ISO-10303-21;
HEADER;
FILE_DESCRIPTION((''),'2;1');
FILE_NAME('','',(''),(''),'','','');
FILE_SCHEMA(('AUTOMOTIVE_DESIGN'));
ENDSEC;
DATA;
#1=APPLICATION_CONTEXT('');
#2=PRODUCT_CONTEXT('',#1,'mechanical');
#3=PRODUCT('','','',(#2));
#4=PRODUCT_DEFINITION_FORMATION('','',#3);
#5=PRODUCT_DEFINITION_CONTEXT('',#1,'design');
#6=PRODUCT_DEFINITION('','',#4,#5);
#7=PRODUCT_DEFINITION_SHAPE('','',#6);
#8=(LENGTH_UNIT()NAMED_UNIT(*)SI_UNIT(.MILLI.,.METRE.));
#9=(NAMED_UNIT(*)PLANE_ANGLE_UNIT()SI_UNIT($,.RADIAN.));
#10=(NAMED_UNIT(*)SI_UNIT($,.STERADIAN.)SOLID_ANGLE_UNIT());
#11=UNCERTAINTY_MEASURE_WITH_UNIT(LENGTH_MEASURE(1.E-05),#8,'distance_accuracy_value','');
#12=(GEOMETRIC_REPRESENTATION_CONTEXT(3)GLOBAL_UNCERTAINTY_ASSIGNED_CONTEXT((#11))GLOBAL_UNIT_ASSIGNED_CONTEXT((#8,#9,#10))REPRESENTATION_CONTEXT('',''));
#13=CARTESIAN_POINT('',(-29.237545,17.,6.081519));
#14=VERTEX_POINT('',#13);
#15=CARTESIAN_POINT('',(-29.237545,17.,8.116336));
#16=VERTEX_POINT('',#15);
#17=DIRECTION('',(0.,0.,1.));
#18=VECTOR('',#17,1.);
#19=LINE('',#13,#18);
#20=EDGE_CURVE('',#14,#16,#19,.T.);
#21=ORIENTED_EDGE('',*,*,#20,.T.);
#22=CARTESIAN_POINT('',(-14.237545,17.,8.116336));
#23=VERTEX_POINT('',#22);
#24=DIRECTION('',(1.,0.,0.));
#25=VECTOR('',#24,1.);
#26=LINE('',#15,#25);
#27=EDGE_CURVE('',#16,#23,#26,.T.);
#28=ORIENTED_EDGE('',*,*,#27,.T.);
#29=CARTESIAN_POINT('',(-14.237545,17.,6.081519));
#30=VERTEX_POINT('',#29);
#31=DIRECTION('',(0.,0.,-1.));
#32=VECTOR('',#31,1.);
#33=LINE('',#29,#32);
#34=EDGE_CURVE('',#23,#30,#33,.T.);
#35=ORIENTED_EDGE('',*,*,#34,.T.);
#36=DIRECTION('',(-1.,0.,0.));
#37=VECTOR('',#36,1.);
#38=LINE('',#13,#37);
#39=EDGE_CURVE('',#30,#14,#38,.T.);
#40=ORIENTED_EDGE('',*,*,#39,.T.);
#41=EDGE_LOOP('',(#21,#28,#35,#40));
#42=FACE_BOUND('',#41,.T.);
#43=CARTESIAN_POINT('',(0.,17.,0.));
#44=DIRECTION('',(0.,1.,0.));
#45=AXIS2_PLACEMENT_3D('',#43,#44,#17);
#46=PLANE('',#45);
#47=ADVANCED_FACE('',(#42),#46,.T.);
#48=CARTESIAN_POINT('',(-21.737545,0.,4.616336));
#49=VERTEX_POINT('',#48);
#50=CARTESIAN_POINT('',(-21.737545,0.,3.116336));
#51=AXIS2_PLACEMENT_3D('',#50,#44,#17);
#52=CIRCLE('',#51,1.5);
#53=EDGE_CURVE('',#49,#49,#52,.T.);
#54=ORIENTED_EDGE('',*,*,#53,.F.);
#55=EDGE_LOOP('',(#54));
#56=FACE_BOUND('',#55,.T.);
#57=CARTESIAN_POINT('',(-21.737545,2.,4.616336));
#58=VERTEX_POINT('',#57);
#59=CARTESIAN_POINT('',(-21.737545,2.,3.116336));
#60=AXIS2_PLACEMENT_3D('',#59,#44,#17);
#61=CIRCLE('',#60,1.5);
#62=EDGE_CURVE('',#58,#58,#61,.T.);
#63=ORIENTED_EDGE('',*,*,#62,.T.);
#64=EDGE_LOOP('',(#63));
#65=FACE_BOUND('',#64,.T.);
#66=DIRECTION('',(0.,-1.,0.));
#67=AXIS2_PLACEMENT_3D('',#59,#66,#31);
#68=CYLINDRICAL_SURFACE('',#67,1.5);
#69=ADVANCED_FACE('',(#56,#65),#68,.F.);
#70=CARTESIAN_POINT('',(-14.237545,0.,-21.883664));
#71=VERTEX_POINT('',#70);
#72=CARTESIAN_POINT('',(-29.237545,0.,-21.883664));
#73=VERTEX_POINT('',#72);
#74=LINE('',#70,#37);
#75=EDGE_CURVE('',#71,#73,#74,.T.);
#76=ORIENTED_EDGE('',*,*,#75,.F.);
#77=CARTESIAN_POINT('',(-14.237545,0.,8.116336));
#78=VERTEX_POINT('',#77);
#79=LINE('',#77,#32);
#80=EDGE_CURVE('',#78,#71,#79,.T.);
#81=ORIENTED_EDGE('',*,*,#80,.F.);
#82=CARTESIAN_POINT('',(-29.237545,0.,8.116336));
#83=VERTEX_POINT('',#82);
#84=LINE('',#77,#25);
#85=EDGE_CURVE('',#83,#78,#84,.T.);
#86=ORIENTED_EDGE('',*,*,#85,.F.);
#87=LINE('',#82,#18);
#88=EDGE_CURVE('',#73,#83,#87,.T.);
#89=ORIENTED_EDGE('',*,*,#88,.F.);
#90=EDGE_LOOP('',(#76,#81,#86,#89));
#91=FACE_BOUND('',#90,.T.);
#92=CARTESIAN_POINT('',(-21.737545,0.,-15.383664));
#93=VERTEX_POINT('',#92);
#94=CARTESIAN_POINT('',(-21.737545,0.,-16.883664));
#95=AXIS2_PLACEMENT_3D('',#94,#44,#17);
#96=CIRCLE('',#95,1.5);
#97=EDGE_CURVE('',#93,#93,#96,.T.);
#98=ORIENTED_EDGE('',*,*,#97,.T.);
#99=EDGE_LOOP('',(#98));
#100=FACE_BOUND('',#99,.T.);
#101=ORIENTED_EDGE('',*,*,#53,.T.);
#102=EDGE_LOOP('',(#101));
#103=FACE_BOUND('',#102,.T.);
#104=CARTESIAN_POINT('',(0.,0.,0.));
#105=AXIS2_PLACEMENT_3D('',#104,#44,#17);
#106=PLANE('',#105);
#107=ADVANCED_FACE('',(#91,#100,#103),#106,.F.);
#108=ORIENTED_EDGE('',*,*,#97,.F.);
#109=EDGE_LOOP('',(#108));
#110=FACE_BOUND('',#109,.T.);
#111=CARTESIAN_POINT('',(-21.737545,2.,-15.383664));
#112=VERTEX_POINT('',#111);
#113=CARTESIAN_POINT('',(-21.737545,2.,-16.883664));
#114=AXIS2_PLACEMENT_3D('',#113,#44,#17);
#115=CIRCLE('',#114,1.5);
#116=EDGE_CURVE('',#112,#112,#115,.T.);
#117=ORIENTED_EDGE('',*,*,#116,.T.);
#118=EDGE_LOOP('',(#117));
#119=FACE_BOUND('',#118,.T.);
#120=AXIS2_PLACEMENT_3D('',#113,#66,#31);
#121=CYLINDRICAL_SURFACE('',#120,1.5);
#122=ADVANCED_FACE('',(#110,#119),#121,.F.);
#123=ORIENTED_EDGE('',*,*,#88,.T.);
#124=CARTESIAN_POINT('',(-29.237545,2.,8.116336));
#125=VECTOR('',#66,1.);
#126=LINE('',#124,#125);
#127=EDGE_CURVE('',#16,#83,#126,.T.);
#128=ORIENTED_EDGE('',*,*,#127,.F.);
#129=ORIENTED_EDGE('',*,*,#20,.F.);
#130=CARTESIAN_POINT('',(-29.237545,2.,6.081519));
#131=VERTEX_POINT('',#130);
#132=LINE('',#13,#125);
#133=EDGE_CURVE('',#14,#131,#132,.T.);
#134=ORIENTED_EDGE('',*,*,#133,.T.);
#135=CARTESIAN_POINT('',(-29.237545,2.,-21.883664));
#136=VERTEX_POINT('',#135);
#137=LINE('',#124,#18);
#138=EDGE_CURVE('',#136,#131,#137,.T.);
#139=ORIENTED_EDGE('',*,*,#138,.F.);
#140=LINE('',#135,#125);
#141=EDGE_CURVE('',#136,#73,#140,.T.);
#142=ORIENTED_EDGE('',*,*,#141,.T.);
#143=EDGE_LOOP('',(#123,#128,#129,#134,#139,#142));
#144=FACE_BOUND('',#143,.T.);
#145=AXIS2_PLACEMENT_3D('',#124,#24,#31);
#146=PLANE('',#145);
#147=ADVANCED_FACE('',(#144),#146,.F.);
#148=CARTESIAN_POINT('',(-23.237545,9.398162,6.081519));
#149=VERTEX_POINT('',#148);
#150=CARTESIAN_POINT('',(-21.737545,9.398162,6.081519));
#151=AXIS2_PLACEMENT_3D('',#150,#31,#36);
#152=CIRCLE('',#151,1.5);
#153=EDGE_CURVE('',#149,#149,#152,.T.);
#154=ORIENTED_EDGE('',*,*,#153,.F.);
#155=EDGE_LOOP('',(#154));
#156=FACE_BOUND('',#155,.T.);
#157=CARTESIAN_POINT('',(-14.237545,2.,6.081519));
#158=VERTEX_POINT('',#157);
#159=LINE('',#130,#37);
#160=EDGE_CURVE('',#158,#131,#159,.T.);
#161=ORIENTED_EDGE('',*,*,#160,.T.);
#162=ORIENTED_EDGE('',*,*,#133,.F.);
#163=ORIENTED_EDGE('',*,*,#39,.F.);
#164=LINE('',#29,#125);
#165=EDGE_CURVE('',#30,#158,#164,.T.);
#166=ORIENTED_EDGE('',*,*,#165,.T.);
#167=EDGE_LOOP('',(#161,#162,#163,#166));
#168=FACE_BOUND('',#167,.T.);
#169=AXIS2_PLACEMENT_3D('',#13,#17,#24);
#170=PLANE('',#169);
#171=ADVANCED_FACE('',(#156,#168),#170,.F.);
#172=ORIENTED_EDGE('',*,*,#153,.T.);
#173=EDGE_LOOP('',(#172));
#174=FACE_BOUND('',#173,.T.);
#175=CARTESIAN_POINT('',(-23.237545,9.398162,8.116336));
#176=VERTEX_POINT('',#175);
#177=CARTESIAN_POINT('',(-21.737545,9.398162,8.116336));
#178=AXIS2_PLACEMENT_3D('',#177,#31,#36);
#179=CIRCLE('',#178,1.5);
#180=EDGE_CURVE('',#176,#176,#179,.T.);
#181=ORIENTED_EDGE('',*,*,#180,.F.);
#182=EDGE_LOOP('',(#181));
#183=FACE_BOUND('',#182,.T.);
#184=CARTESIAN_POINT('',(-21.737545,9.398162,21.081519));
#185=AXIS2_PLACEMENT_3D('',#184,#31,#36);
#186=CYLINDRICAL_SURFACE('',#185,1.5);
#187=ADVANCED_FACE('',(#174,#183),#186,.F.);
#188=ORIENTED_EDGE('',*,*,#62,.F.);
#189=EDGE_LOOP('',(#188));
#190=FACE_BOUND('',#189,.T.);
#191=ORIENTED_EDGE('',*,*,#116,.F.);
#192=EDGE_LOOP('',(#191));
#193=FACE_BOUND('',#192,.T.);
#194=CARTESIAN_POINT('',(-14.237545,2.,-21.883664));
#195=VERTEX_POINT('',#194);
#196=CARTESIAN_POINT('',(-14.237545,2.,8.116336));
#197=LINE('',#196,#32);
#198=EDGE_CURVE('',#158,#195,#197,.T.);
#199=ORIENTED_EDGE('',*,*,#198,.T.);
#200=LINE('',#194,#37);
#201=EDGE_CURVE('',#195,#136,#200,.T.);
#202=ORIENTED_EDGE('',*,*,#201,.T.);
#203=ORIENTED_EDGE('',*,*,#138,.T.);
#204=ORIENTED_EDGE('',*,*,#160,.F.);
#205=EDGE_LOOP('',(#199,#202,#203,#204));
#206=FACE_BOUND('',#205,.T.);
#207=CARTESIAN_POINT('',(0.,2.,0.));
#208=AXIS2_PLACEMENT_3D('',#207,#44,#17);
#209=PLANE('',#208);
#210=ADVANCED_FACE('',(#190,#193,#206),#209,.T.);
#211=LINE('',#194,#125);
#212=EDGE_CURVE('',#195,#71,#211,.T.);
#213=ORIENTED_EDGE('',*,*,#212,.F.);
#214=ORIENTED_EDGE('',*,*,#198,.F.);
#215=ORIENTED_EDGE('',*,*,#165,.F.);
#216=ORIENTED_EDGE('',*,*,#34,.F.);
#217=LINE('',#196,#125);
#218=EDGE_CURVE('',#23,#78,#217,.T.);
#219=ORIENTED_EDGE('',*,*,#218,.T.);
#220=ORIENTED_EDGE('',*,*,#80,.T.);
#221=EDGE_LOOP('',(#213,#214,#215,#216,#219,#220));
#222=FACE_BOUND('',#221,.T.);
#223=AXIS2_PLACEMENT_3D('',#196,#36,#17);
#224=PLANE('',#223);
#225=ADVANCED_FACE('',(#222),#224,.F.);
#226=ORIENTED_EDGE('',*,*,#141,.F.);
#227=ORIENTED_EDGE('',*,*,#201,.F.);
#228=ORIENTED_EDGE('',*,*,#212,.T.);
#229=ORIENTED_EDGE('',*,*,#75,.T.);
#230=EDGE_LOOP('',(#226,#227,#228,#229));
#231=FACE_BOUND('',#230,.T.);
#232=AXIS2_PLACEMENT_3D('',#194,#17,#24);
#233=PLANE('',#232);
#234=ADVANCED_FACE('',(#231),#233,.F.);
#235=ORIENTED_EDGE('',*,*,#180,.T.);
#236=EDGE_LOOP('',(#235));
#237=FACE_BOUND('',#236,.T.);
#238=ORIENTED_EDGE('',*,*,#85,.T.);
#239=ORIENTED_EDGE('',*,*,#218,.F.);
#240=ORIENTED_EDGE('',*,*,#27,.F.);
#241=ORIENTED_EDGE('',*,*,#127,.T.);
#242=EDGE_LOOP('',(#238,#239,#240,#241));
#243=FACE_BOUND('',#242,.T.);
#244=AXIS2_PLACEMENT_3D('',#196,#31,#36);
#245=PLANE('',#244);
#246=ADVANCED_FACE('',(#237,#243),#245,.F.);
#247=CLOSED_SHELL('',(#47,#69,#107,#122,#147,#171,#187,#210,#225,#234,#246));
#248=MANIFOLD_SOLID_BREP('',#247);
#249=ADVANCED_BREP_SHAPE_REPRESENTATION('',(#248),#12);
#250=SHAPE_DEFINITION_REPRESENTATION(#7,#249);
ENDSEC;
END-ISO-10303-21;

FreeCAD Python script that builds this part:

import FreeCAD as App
import Part
import Sketcher

doc = App.newDocument("Part")
params = doc.addObject("Spreadsheet::Sheet", "Params")
for row, (alias, value) in enumerate([
    ("sketch1_diameter", "3 mm"),
    ("sketch1_width", "15 mm"),
    ("sketch1_height", "30 mm"),
    ("pad1_length", "2 mm"),
    ("sketch2_width", "15 mm"),
    ("pad2_length", "15 mm"),
    ("sketch3_diameter", "3 mm"),
    ("pocket1_length", "15 mm"),
], start=1):
    params.set(f"A{row}", alias)
    params.set(f"B{row}", "=" + value)
    params.setAlias(f"B{row}", alias)

body = doc.addObject("PartDesign::Body", "Body")

# Sketch on XZ plane
sketch1 = body.newObject("Sketcher::SketchObject", "Sketch")
sketch1.AttachmentSupport = (doc.getObject("XZ_Plane"), [""])
sketch1.MapMode = "FlatFace"
sketch1.addGeometry(Part.LineSegment(App.Vector(-29.2, -21.9, 0), App.Vector(-29.2, 8.1, 0)), False)
sketch1.addGeometry(Part.LineSegment(App.Vector(-29.2, 8.1, 0), App.Vector(-14.2, 8.1, 0)), False)
sketch1.addGeometry(Part.LineSegment(App.Vector(-14.2, 8.1, 0), App.Vector(-14.2, -21.9, 0)), False)
sketch1.addGeometry(Part.LineSegment(App.Vector(-14.2, -21.9, 0), App.Vector(-29.2, -21.9, 0)), False)
sketch1.addGeometry(Part.Circle(App.Vector(-21.7, 3.1, 0), App.Vector(0, 0, 1), 1.5), False)
sketch1.addGeometry(Part.Circle(App.Vector(-21.7, -16.9, 0), App.Vector(0, 0, 1), 1.5), False)
sketch1.addConstraint(Sketcher.Constraint("Coincident", 0, 2, 1, 1))
sketch1.addConstraint(Sketcher.Constraint("Coincident", 1, 2, 2, 1))
sketch1.addConstraint(Sketcher.Constraint("Coincident", 2, 2, 3, 1))
sketch1.addConstraint(Sketcher.Constraint("Coincident", 3, 2, 0, 1))
sketch1.addConstraint(Sketcher.Constraint("Vertical", 0))
sketch1.addConstraint(Sketcher.Constraint("Horizontal", 1))
sketch1.addConstraint(Sketcher.Constraint("Vertical", 2))
sketch1.addConstraint(Sketcher.Constraint("Horizontal", 3))
sketch1.addConstraint(Sketcher.Constraint("Equal", 4, 5))
sketch1.addConstraint(Sketcher.Constraint("Vertical", 4, 3, 5, 3))
sketch1.addConstraint(Sketcher.Constraint("Diameter", 4, 3.0))
sketch1.addConstraint(Sketcher.Constraint("DistanceX", 1, 1, 1, 2, 15.0))
sketch1.addConstraint(Sketcher.Constraint("DistanceY", 0, 1, 0, 2, 30.0))
sketch1.addConstraint(Sketcher.Constraint("DistanceY", 5, 3, 4, 3, 20.0))
sketch1.addConstraint(Sketcher.Constraint("DistanceY", 4, 3, 0, 2, 5.0))
sketch1.addConstraint(Sketcher.Constraint("DistanceX", 0, 2, 4, 3, 7.5))
sketch1.addConstraint(Sketcher.Constraint("DistanceX", 4, 3, -1, 1, 21.737545))
sketch1.addConstraint(Sketcher.Constraint("DistanceY", -1, 1, 4, 3, 3.116336))
sketch1.setExpression("Constraints[10]", "Params.sketch1_diameter")
sketch1.setExpression("Constraints[11]", "Params.sketch1_width")
sketch1.setExpression("Constraints[12]", "Params.sketch1_height")
pad1 = body.newObject("PartDesign::Pad", "Pad")
pad1.Profile = sketch1
pad1.setExpression("Length", "Params.pad1_length")
pad1.Reversed = True

# Sketch on XZ plane
sketch2 = body.newObject("Sketcher::SketchObject", "Sketch001")
sketch2.AttachmentSupport = (doc.getObject("XZ_Plane"), [""])
sketch2.MapMode = "FlatFace"
sketch2.AttachmentOffset = App.Placement(App.Vector(0, 0, -2), App.Rotation())
sketch2.addGeometry(Part.LineSegment(App.Vector(-29.2, 6.1, 0), App.Vector(-29.2, 8.1, 0)), False)
sketch2.addGeometry(Part.LineSegment(App.Vector(-29.2, 8.1, 0), App.Vector(-14.2, 8.1, 0)), False)
sketch2.addGeometry(Part.LineSegment(App.Vector(-14.2, 8.1, 0), App.Vector(-14.2, 6.1, 0)), False)
sketch2.addGeometry(Part.LineSegment(App.Vector(-14.2, 6.1, 0), App.Vector(-29.2, 6.1, 0)), False)
sketch2.addConstraint(Sketcher.Constraint("Coincident", 0, 2, 1, 1))
sketch2.addConstraint(Sketcher.Constraint("Coincident", 1, 2, 2, 1))
sketch2.addConstraint(Sketcher.Constraint("Coincident", 2, 2, 3, 1))
sketch2.addConstraint(Sketcher.Constraint("Coincident", 3, 2, 0, 1))
sketch2.addConstraint(Sketcher.Constraint("Vertical", 0))
sketch2.addConstraint(Sketcher.Constraint("Horizontal", 1))
sketch2.addConstraint(Sketcher.Constraint("Vertical", 2))
sketch2.addConstraint(Sketcher.Constraint("Horizontal", 3))
sketch2.addConstraint(Sketcher.Constraint("DistanceX", 1, 1, 1, 2, 15.0))
sketch2.addConstraint(Sketcher.Constraint("DistanceY", 0, 1, 0, 2, 2.034817))
sketch2.addConstraint(Sketcher.Constraint("DistanceY", -1, 1, 2, 2, 6.081519))
sketch2.addConstraint(Sketcher.Constraint("DistanceX", 0, 2, -1, 1, 29.237545))
sketch2.setExpression("Constraints[8]", "Params.sketch2_width")
pad2 = body.newObject("PartDesign::Pad", "Pad001")
pad2.Profile = sketch2
pad2.setExpression("Length", "Params.pad2_length")
pad2.Reversed = True

# Sketch on XY plane
sketch3 = body.newObject("Sketcher::SketchObject", "Sketch002")
sketch3.AttachmentSupport = (doc.getObject("XY_Plane"), [""])
sketch3.MapMode = "FlatFace"
sketch3.AttachmentOffset = App.Placement(App.Vector(0, 0, 6.081519), App.Rotation())
sketch3.addGeometry(Part.Circle(App.Vector(-21.7, 9.4, 0), App.Vector(0, 0, 1), 1.5), False)
sketch3.addConstraint(Sketcher.Constraint("Diameter", 0, 3.0))
sketch3.addConstraint(Sketcher.Constraint("DistanceX", 0, 3, -1, 1, 21.737545))
sketch3.addConstraint(Sketcher.Constraint("DistanceY", -1, 1, 0, 3, 9.398162))
sketch3.setExpression("Constraints[0]", "Params.sketch3_diameter")
pocket1 = body.newObject("PartDesign::Pocket", "Pocket")
pocket1.Profile = sketch3
pocket1.setExpression("Length", "Params.pocket1_length")
pocket1.Reversed = True

doc.recompute()
